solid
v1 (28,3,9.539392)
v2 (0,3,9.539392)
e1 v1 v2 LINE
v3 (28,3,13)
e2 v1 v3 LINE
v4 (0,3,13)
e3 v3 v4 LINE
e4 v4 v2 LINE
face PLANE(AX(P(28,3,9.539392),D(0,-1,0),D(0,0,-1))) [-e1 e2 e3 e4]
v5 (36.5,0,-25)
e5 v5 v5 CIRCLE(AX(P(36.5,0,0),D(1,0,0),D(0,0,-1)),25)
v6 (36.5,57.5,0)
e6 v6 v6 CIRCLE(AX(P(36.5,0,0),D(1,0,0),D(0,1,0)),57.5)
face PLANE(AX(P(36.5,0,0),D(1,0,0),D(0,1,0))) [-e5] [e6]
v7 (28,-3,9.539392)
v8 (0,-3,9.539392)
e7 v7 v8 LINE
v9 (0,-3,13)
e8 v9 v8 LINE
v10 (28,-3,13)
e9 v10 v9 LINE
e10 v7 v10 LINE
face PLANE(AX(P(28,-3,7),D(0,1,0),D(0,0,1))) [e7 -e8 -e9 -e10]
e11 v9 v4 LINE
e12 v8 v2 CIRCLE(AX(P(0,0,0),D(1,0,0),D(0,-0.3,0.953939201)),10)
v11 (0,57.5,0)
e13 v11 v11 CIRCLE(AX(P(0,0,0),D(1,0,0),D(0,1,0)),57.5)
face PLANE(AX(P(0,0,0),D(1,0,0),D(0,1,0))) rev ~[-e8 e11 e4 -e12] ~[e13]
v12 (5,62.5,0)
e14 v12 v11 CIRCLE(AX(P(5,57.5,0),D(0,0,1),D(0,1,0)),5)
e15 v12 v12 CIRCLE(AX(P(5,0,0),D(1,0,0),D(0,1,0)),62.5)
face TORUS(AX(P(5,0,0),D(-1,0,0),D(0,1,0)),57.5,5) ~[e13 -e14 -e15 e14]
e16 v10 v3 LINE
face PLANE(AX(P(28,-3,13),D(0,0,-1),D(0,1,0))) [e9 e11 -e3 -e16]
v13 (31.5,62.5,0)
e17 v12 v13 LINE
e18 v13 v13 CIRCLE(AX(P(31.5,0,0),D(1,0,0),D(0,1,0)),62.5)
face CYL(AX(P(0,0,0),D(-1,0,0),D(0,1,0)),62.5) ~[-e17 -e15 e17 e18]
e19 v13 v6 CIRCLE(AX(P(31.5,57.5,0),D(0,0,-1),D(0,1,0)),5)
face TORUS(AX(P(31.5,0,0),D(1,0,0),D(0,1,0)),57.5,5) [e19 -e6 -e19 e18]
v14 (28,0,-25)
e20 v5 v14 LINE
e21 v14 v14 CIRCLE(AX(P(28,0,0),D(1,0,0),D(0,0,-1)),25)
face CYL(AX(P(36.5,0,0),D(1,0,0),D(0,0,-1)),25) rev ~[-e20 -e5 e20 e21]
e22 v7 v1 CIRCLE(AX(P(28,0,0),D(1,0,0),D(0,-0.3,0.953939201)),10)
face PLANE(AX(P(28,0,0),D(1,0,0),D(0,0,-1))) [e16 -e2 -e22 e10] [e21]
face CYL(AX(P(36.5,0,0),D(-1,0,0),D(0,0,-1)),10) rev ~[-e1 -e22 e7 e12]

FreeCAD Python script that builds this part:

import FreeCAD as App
import Part
import Sketcher

V = App.Vector
Q = App.Units.Quantity


def edges_at(feature, points):
    """Names of the edges that pass closest to the given points."""
    edges = feature.Shape.Edges
    near = lambda p: min(range(len(edges)), key=lambda i: edges[i].distToShape(Part.Vertex(*p))[0])
    return sorted({f"Edge{near(p) + 1}" for p in points})

doc = App.newDocument("Part")
params = doc.addObject("Spreadsheet::Sheet", "Params")
for row, (alias, value) in enumerate([
    ("sketch1_diameter", "125 mm"),
    ("pad1_length", "36.5 mm"),
    ("fillet_radius", "5 mm"),
    ("sketch2_diameter", "20 mm"),
    ("hole_diameter", "20 mm"),
    ("sketch3_diameter", "50 mm"),
    ("pocket1_length", "8.5 mm"),
    ("sketch4_width", "6 mm"),
    ("pocket2_length", "28 mm"),
], start=1):
    params.set(f"A{row}", alias)
    params.set(f"B{row}", "=" + value)
    params.setAlias(f"B{row}", alias)

body = doc.addObject("PartDesign::Body", "Body")

sketch1 = body.newObject("Sketcher::SketchObject", "Sketch")
sketch1.AttachmentSupport = (doc.getObject("YZ_Plane"), [""])
sketch1.MapMode = "FlatFace"
sketch1.addGeometry(Part.Circle(V(0, 0, 0), V(0, 0, 1), 62), False)
sketch1.addConstraint([
    Sketcher.Constraint("Coincident", 0, 3, -1, 1),
    Sketcher.Constraint("Diameter", 0, Q("125 mm")),
])
sketch1.setExpression("Constraints[1]", "Params.sketch1_diameter")
pad1 = body.newObject("PartDesign::Pad", "Pad")
pad1.Profile = sketch1
pad1.setExpression("Length", "Params.pad1_length")
doc.recompute()

fillet = body.newObject("PartDesign::Fillet", "Fillet")
fillet.Base = (pad1, edges_at(pad1, [(36.5, -62.5, 0), (0, -62.5, 0)]))
fillet.setExpression("Radius", "Params.fillet_radius")

sketch2 = body.newObject("Sketcher::SketchObject", "Sketch001")
sketch2.AttachmentSupport = (doc.getObject("YZ_Plane"), [""])
sketch2.MapMode = "FlatFace"
sketch2.AttachmentOffset = App.Placement(V(0, 0, 36.5), App.Rotation())
sketch2.addGeometry(Part.Circle(V(0, 0, 0), V(0, 0, 1), 10), False)
sketch2.addConstraint([
    Sketcher.Constraint("Coincident", 0, 3, -1, 1),
    Sketcher.Constraint("Diameter", 0, Q("20 mm")),
])
sketch2.setExpression("Constraints[1]", "Params.sketch2_diameter")
doc.recompute()
hole = body.newObject("PartDesign::Hole", "Hole")
hole.Profile = sketch2
hole.ThreadType = "None"
hole.setExpression("Diameter", "Params.hole_diameter")
hole.DepthType = "ThroughAll"

sketch3 = body.newObject("Sketcher::SketchObject", "Sketch002")
sketch3.AttachmentSupport = (doc.getObject("YZ_Plane"), [""])
sketch3.MapMode = "FlatFace"
sketch3.AttachmentOffset = App.Placement(V(0, 0, 36.5), App.Rotation())
sketch3.addGeometry(Part.Circle(V(0, 0, 0), V(0, 0, 1), 25), False)
sketch3.addConstraint([
    Sketcher.Constraint("Coincident", 0, 3, -1, 1),
    Sketcher.Constraint("Diameter", 0, Q("50 mm")),
])
sketch3.setExpression("Constraints[1]", "Params.sketch3_diameter")
pocket1 = body.newObject("PartDesign::Pocket", "Pocket")
pocket1.Profile = sketch3
pocket1.setExpression("Length", "Params.pocket1_length")

sketch4 = body.newObject("Sketcher::SketchObject", "Sketch003")
sketch4.AttachmentSupport = (doc.getObject("YZ_Plane"), [""])
sketch4.MapMode = "FlatFace"
sketch4.AttachmentOffset = App.Placement(V(0, 0, 28), App.Rotation())
sketch4.addGeometry([
    Part.LineSegment(V(-3, 7, 0), V(3, 7, 0)),
    Part.LineSegment(V(3, 7, 0), V(3, 13, 0)),
    Part.LineSegment(V(3, 13, 0), V(-3, 13, 0)),
    Part.LineSegment(V(-3, 13, 0), V(-3, 7, 0)),
], False)
sketch4.addConstraint([
    Sketcher.Constraint("Coincident", 0, 2, 1, 1),
    Sketcher.Constraint("Coincident", 1, 2, 2, 1),
    Sketcher.Constraint("Coincident", 2, 2, 3, 1),
    Sketcher.Constraint("Coincident", 3, 2, 0, 1),
    Sketcher.Constraint("Horizontal", 0),
    Sketcher.Constraint("Vertical", 1),
    Sketcher.Constraint("Horizontal", 2),
    Sketcher.Constraint("Vertical", 3),
    Sketcher.Constraint("Equal", 2, 1),
    Sketcher.Constraint("DistanceX", 0, 1, 0, 2, Q("6 mm")),
    Sketcher.Constraint("DistanceX", -1, 1, 0, 2, Q("3 mm")),
    Sketcher.Constraint("DistanceY", -1, 1, 0, 2, Q("7 mm")),
])
sketch4.setExpression("Constraints[9]", "Params.sketch4_width")
pocket2 = body.newObject("PartDesign::Pocket", "Pocket001")
pocket2.Profile = sketch4
pocket2.setExpression("Length", "Params.pocket2_length")

doc.recompute()
